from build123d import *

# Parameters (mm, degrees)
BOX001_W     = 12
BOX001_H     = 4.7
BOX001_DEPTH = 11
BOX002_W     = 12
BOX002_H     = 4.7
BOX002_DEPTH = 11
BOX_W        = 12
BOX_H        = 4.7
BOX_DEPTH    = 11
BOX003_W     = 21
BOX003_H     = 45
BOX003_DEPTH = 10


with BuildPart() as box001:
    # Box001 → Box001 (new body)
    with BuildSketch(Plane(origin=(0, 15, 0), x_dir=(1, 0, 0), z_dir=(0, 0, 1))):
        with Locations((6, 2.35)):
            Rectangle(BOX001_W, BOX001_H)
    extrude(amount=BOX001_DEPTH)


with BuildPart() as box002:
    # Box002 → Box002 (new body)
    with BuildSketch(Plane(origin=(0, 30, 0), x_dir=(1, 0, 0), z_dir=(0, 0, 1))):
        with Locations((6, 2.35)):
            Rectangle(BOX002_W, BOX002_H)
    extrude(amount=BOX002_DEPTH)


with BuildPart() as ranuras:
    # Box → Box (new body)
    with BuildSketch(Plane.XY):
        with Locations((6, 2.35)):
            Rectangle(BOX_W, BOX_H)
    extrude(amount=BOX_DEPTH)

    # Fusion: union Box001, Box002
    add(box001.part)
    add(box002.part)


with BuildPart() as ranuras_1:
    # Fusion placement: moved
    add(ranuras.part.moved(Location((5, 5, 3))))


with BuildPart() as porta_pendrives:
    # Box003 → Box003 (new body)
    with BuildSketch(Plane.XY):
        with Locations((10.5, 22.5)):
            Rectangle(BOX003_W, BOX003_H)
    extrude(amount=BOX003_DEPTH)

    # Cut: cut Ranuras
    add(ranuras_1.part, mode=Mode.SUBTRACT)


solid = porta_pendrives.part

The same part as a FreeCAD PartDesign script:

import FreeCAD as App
import Part
import Sketcher
Q = App.Units.Quantity

doc = App.newDocument("Part")
body = doc.addObject("PartDesign::Body", "Body")

# Sketch on XY plane
sketch1 = body.newObject("Sketcher::SketchObject", "Sketch")
sketch1.AttachmentSupport = (doc.getObject("XY_Plane"), [""])
sketch1.MapMode = "FlatFace"
sketch1.addGeometry(Part.LineSegment(App.Vector(0, 19.7, 0), App.Vector(0, 15, 0)), False)
sketch1.addGeometry(Part.LineSegment(App.Vector(0, 15, 0), App.Vector(12, 15, 0)), False)
sketch1.addGeometry(Part.LineSegment(App.Vector(12, 15, 0), App.Vector(12, 19.7, 0)), False)
sketch1.addGeometry(Part.LineSegment(App.Vector(12, 19.7, 0), App.Vector(0, 19.7, 0)), False)
sketch1.addConstraint(Sketcher.Constraint("Coincident", 0, 2, 1, 1))
sketch1.addConstraint(Sketcher.Constraint("Coincident", 1, 2, 2, 1))
sketch1.addConstraint(Sketcher.Constraint("Coincident", 2, 2, 3, 1))
sketch1.addConstraint(Sketcher.Constraint("Coincident", 3, 2, 0, 1))
sketch1.addConstraint(Sketcher.Constraint("Vertical", 0))
sketch1.addConstraint(Sketcher.Constraint("Horizontal", 1))
sketch1.addConstraint(Sketcher.Constraint("Vertical", 2))
sketch1.addConstraint(Sketcher.Constraint("Horizontal", 3))
sketch1.addConstraint(Sketcher.Constraint("PointOnObject", 0, 2, -2))
sketch1.addConstraint(Sketcher.Constraint("DistanceX", 1, 1, 1, 2, Q("12 mm")))
sketch1.addConstraint(Sketcher.Constraint("DistanceY", 0, 2, 0, 1, Q("4.7 mm")))
sketch1.addConstraint(Sketcher.Constraint("DistanceY", -1, 1, 0, 2, Q("15 mm")))
pad1 = body.newObject("PartDesign::Pad", "Pad")
pad1.Profile = sketch1
pad1.Length = 11
body2 = doc.addObject("PartDesign::Body", "Body001")

# Sketch on XY plane
sketch2 = body2.newObject("Sketcher::SketchObject", "Sketch001")
sketch2.AttachmentSupport = (doc.getObject("XY_Plane001"), [""])
sketch2.MapMode = "FlatFace"
sketch2.addGeometry(Part.LineSegment(App.Vector(0, 34.7, 0), App.Vector(0, 30, 0)), False)
sketch2.addGeometry(Part.LineSegment(App.Vector(0, 30, 0), App.Vector(12, 30, 0)), False)
sketch2.addGeometry(Part.LineSegment(App.Vector(12, 30, 0), App.Vector(12, 34.7, 0)), False)
sketch2.addGeometry(Part.LineSegment(App.Vector(12, 34.7, 0), App.Vector(0, 34.7, 0)), False)
sketch2.addConstraint(Sketcher.Constraint("Coincident", 0, 2, 1, 1))
sketch2.addConstraint(Sketcher.Constraint("Coincident", 1, 2, 2, 1))
sketch2.addConstraint(Sketcher.Constraint("Coincident", 2, 2, 3, 1))
sketch2.addConstraint(Sketcher.Constraint("Coincident", 3, 2, 0, 1))
sketch2.addConstraint(Sketcher.Constraint("Vertical", 0))
sketch2.addConstraint(Sketcher.Constraint("Horizontal", 1))
sketch2.addConstraint(Sketcher.Constraint("Vertical", 2))
sketch2.addConstraint(Sketcher.Constraint("Horizontal", 3))
sketch2.addConstraint(Sketcher.Constraint("PointOnObject", 0, 2, -2))
sketch2.addConstraint(Sketcher.Constraint("DistanceX", 1, 1, 1, 2, Q("12 mm")))
sketch2.addConstraint(Sketcher.Constraint("DistanceY", 0, 2, 0, 1, Q("4.7 mm")))
sketch2.addConstraint(Sketcher.Constraint("DistanceY", -1, 1, 0, 2, Q("30 mm")))
pad2 = body2.newObject("PartDesign::Pad", "Pad001")
pad2.Profile = sketch2
pad2.Length = 11
body3 = doc.addObject("PartDesign::Body", "Body002")
body3.AllowCompound = True

# Sketch on XY plane
sketch3 = body3.newObject("Sketcher::SketchObject", "Sketch002")
sketch3.AttachmentSupport = (doc.getObject("XY_Plane002"), [""])
sketch3.MapMode = "FlatFace"
sketch3.addGeometry(Part.LineSegment(App.Vector(0, 4.7, 0), App.Vector(0, 0, 0)), False)
sketch3.addGeometry(Part.LineSegment(App.Vector(0, 0, 0), App.Vector(12, 0, 0)), False)
sketch3.addGeometry(Part.LineSegment(App.Vector(12, 0, 0), App.Vector(12, 4.7, 0)), False)
sketch3.addGeometry(Part.LineSegment(App.Vector(12, 4.7, 0), App.Vector(0, 4.7, 0)), False)
sketch3.addConstraint(Sketcher.Constraint("Coincident", 0, 2, 1, 1))
sketch3.addConstraint(Sketcher.Constraint("Coincident", 1, 2, 2, 1))
sketch3.addConstraint(Sketcher.Constraint("Coincident", 2, 2, 3, 1))
sketch3.addConstraint(Sketcher.Constraint("Coincident", 3, 2, 0, 1))
sketch3.addConstraint(Sketcher.Constraint("Vertical", 0))
sketch3.addConstraint(Sketcher.Constraint("Horizontal", 1))
sketch3.addConstraint(Sketcher.Constraint("Vertical", 2))
sketch3.addConstraint(Sketcher.Constraint("Horizontal", 3))
sketch3.addConstraint(Sketcher.Constraint("Coincident", 0, 2, -1, 1))
sketch3.addConstraint(Sketcher.Constraint("DistanceX", 1, 1, 1, 2, Q("12 mm")))
sketch3.addConstraint(Sketcher.Constraint("DistanceY", 0, 2, 0, 1, Q("4.7 mm")))
pad3 = body3.newObject("PartDesign::Pad", "Pad002")
pad3.Profile = sketch3
pad3.Length = 11
doc.recompute()

boolean = body3.newObject("PartDesign::Boolean", "Boolean")
boolean.Type = "Fuse"
boolean.addObjects([body])
doc.recompute()

boolean2 = body3.newObject("PartDesign::Boolean", "Boolean001")
boolean2.Type = "Fuse"
boolean2.addObjects([body2])
body4 = doc.addObject("PartDesign::Body", "Body003")
body4.AllowCompound = True
doc.recompute()

body3.Placement = App.Placement(App.Vector(5, 5, 3), App.Rotation(App.Vector(0, 0, 1), 0))
boolean3 = body4.newObject("PartDesign::Boolean", "Boolean002")
boolean3.Type = "Fuse"
boolean3.addObjects([body3])
body5 = doc.addObject("PartDesign::Body", "Body004")

# Sketch on XY plane
sketch4 = body5.newObject("Sketcher::SketchObject", "Sketch003")
sketch4.AttachmentSupport = (doc.getObject("XY_Plane004"), [""])
sketch4.MapMode = "FlatFace"
sketch4.addGeometry(Part.LineSegment(App.Vector(0, 45, 0), App.Vector(0, 0, 0)), False)
sketch4.addGeometry(Part.LineSegment(App.Vector(0, 0, 0), App.Vector(21, 0, 0)), False)
sketch4.addGeometry(Part.LineSegment(App.Vector(21, 0, 0), App.Vector(21, 45, 0)), False)
sketch4.addGeometry(Part.LineSegment(App.Vector(21, 45, 0), App.Vector(0, 45, 0)), False)
sketch4.addConstraint(Sketcher.Constraint("Coincident", 0, 2, 1, 1))
sketch4.addConstraint(Sketcher.Constraint("Coincident", 1, 2, 2, 1))
sketch4.addConstraint(Sketcher.Constraint("Coincident", 2, 2, 3, 1))
sketch4.addConstraint(Sketcher.Constraint("Coincident", 3, 2, 0, 1))
sketch4.addConstraint(Sketcher.Constraint("Vertical", 0))
sketch4.addConstraint(Sketcher.Constraint("Horizontal", 1))
sketch4.addConstraint(Sketcher.Constraint("Vertical", 2))
sketch4.addConstraint(Sketcher.Constraint("Horizontal", 3))
sketch4.addConstraint(Sketcher.Constraint("Coincident", 0, 2, -1, 1))
sketch4.addConstraint(Sketcher.Constraint("DistanceX", 1, 1, 1, 2, Q("21 mm")))
sketch4.addConstraint(Sketcher.Constraint("DistanceY", 0, 2, 0, 1, Q("45 mm")))
pad4 = body5.newObject("PartDesign::Pad", "Pad003")
pad4.Profile = sketch4
pad4.Length = 10
doc.recompute()

boolean4 = body5.newObject("PartDesign::Boolean", "Boolean003")
boolean4.Type = "Cut"
boolean4.addObjects([body4])

doc.recompute()
